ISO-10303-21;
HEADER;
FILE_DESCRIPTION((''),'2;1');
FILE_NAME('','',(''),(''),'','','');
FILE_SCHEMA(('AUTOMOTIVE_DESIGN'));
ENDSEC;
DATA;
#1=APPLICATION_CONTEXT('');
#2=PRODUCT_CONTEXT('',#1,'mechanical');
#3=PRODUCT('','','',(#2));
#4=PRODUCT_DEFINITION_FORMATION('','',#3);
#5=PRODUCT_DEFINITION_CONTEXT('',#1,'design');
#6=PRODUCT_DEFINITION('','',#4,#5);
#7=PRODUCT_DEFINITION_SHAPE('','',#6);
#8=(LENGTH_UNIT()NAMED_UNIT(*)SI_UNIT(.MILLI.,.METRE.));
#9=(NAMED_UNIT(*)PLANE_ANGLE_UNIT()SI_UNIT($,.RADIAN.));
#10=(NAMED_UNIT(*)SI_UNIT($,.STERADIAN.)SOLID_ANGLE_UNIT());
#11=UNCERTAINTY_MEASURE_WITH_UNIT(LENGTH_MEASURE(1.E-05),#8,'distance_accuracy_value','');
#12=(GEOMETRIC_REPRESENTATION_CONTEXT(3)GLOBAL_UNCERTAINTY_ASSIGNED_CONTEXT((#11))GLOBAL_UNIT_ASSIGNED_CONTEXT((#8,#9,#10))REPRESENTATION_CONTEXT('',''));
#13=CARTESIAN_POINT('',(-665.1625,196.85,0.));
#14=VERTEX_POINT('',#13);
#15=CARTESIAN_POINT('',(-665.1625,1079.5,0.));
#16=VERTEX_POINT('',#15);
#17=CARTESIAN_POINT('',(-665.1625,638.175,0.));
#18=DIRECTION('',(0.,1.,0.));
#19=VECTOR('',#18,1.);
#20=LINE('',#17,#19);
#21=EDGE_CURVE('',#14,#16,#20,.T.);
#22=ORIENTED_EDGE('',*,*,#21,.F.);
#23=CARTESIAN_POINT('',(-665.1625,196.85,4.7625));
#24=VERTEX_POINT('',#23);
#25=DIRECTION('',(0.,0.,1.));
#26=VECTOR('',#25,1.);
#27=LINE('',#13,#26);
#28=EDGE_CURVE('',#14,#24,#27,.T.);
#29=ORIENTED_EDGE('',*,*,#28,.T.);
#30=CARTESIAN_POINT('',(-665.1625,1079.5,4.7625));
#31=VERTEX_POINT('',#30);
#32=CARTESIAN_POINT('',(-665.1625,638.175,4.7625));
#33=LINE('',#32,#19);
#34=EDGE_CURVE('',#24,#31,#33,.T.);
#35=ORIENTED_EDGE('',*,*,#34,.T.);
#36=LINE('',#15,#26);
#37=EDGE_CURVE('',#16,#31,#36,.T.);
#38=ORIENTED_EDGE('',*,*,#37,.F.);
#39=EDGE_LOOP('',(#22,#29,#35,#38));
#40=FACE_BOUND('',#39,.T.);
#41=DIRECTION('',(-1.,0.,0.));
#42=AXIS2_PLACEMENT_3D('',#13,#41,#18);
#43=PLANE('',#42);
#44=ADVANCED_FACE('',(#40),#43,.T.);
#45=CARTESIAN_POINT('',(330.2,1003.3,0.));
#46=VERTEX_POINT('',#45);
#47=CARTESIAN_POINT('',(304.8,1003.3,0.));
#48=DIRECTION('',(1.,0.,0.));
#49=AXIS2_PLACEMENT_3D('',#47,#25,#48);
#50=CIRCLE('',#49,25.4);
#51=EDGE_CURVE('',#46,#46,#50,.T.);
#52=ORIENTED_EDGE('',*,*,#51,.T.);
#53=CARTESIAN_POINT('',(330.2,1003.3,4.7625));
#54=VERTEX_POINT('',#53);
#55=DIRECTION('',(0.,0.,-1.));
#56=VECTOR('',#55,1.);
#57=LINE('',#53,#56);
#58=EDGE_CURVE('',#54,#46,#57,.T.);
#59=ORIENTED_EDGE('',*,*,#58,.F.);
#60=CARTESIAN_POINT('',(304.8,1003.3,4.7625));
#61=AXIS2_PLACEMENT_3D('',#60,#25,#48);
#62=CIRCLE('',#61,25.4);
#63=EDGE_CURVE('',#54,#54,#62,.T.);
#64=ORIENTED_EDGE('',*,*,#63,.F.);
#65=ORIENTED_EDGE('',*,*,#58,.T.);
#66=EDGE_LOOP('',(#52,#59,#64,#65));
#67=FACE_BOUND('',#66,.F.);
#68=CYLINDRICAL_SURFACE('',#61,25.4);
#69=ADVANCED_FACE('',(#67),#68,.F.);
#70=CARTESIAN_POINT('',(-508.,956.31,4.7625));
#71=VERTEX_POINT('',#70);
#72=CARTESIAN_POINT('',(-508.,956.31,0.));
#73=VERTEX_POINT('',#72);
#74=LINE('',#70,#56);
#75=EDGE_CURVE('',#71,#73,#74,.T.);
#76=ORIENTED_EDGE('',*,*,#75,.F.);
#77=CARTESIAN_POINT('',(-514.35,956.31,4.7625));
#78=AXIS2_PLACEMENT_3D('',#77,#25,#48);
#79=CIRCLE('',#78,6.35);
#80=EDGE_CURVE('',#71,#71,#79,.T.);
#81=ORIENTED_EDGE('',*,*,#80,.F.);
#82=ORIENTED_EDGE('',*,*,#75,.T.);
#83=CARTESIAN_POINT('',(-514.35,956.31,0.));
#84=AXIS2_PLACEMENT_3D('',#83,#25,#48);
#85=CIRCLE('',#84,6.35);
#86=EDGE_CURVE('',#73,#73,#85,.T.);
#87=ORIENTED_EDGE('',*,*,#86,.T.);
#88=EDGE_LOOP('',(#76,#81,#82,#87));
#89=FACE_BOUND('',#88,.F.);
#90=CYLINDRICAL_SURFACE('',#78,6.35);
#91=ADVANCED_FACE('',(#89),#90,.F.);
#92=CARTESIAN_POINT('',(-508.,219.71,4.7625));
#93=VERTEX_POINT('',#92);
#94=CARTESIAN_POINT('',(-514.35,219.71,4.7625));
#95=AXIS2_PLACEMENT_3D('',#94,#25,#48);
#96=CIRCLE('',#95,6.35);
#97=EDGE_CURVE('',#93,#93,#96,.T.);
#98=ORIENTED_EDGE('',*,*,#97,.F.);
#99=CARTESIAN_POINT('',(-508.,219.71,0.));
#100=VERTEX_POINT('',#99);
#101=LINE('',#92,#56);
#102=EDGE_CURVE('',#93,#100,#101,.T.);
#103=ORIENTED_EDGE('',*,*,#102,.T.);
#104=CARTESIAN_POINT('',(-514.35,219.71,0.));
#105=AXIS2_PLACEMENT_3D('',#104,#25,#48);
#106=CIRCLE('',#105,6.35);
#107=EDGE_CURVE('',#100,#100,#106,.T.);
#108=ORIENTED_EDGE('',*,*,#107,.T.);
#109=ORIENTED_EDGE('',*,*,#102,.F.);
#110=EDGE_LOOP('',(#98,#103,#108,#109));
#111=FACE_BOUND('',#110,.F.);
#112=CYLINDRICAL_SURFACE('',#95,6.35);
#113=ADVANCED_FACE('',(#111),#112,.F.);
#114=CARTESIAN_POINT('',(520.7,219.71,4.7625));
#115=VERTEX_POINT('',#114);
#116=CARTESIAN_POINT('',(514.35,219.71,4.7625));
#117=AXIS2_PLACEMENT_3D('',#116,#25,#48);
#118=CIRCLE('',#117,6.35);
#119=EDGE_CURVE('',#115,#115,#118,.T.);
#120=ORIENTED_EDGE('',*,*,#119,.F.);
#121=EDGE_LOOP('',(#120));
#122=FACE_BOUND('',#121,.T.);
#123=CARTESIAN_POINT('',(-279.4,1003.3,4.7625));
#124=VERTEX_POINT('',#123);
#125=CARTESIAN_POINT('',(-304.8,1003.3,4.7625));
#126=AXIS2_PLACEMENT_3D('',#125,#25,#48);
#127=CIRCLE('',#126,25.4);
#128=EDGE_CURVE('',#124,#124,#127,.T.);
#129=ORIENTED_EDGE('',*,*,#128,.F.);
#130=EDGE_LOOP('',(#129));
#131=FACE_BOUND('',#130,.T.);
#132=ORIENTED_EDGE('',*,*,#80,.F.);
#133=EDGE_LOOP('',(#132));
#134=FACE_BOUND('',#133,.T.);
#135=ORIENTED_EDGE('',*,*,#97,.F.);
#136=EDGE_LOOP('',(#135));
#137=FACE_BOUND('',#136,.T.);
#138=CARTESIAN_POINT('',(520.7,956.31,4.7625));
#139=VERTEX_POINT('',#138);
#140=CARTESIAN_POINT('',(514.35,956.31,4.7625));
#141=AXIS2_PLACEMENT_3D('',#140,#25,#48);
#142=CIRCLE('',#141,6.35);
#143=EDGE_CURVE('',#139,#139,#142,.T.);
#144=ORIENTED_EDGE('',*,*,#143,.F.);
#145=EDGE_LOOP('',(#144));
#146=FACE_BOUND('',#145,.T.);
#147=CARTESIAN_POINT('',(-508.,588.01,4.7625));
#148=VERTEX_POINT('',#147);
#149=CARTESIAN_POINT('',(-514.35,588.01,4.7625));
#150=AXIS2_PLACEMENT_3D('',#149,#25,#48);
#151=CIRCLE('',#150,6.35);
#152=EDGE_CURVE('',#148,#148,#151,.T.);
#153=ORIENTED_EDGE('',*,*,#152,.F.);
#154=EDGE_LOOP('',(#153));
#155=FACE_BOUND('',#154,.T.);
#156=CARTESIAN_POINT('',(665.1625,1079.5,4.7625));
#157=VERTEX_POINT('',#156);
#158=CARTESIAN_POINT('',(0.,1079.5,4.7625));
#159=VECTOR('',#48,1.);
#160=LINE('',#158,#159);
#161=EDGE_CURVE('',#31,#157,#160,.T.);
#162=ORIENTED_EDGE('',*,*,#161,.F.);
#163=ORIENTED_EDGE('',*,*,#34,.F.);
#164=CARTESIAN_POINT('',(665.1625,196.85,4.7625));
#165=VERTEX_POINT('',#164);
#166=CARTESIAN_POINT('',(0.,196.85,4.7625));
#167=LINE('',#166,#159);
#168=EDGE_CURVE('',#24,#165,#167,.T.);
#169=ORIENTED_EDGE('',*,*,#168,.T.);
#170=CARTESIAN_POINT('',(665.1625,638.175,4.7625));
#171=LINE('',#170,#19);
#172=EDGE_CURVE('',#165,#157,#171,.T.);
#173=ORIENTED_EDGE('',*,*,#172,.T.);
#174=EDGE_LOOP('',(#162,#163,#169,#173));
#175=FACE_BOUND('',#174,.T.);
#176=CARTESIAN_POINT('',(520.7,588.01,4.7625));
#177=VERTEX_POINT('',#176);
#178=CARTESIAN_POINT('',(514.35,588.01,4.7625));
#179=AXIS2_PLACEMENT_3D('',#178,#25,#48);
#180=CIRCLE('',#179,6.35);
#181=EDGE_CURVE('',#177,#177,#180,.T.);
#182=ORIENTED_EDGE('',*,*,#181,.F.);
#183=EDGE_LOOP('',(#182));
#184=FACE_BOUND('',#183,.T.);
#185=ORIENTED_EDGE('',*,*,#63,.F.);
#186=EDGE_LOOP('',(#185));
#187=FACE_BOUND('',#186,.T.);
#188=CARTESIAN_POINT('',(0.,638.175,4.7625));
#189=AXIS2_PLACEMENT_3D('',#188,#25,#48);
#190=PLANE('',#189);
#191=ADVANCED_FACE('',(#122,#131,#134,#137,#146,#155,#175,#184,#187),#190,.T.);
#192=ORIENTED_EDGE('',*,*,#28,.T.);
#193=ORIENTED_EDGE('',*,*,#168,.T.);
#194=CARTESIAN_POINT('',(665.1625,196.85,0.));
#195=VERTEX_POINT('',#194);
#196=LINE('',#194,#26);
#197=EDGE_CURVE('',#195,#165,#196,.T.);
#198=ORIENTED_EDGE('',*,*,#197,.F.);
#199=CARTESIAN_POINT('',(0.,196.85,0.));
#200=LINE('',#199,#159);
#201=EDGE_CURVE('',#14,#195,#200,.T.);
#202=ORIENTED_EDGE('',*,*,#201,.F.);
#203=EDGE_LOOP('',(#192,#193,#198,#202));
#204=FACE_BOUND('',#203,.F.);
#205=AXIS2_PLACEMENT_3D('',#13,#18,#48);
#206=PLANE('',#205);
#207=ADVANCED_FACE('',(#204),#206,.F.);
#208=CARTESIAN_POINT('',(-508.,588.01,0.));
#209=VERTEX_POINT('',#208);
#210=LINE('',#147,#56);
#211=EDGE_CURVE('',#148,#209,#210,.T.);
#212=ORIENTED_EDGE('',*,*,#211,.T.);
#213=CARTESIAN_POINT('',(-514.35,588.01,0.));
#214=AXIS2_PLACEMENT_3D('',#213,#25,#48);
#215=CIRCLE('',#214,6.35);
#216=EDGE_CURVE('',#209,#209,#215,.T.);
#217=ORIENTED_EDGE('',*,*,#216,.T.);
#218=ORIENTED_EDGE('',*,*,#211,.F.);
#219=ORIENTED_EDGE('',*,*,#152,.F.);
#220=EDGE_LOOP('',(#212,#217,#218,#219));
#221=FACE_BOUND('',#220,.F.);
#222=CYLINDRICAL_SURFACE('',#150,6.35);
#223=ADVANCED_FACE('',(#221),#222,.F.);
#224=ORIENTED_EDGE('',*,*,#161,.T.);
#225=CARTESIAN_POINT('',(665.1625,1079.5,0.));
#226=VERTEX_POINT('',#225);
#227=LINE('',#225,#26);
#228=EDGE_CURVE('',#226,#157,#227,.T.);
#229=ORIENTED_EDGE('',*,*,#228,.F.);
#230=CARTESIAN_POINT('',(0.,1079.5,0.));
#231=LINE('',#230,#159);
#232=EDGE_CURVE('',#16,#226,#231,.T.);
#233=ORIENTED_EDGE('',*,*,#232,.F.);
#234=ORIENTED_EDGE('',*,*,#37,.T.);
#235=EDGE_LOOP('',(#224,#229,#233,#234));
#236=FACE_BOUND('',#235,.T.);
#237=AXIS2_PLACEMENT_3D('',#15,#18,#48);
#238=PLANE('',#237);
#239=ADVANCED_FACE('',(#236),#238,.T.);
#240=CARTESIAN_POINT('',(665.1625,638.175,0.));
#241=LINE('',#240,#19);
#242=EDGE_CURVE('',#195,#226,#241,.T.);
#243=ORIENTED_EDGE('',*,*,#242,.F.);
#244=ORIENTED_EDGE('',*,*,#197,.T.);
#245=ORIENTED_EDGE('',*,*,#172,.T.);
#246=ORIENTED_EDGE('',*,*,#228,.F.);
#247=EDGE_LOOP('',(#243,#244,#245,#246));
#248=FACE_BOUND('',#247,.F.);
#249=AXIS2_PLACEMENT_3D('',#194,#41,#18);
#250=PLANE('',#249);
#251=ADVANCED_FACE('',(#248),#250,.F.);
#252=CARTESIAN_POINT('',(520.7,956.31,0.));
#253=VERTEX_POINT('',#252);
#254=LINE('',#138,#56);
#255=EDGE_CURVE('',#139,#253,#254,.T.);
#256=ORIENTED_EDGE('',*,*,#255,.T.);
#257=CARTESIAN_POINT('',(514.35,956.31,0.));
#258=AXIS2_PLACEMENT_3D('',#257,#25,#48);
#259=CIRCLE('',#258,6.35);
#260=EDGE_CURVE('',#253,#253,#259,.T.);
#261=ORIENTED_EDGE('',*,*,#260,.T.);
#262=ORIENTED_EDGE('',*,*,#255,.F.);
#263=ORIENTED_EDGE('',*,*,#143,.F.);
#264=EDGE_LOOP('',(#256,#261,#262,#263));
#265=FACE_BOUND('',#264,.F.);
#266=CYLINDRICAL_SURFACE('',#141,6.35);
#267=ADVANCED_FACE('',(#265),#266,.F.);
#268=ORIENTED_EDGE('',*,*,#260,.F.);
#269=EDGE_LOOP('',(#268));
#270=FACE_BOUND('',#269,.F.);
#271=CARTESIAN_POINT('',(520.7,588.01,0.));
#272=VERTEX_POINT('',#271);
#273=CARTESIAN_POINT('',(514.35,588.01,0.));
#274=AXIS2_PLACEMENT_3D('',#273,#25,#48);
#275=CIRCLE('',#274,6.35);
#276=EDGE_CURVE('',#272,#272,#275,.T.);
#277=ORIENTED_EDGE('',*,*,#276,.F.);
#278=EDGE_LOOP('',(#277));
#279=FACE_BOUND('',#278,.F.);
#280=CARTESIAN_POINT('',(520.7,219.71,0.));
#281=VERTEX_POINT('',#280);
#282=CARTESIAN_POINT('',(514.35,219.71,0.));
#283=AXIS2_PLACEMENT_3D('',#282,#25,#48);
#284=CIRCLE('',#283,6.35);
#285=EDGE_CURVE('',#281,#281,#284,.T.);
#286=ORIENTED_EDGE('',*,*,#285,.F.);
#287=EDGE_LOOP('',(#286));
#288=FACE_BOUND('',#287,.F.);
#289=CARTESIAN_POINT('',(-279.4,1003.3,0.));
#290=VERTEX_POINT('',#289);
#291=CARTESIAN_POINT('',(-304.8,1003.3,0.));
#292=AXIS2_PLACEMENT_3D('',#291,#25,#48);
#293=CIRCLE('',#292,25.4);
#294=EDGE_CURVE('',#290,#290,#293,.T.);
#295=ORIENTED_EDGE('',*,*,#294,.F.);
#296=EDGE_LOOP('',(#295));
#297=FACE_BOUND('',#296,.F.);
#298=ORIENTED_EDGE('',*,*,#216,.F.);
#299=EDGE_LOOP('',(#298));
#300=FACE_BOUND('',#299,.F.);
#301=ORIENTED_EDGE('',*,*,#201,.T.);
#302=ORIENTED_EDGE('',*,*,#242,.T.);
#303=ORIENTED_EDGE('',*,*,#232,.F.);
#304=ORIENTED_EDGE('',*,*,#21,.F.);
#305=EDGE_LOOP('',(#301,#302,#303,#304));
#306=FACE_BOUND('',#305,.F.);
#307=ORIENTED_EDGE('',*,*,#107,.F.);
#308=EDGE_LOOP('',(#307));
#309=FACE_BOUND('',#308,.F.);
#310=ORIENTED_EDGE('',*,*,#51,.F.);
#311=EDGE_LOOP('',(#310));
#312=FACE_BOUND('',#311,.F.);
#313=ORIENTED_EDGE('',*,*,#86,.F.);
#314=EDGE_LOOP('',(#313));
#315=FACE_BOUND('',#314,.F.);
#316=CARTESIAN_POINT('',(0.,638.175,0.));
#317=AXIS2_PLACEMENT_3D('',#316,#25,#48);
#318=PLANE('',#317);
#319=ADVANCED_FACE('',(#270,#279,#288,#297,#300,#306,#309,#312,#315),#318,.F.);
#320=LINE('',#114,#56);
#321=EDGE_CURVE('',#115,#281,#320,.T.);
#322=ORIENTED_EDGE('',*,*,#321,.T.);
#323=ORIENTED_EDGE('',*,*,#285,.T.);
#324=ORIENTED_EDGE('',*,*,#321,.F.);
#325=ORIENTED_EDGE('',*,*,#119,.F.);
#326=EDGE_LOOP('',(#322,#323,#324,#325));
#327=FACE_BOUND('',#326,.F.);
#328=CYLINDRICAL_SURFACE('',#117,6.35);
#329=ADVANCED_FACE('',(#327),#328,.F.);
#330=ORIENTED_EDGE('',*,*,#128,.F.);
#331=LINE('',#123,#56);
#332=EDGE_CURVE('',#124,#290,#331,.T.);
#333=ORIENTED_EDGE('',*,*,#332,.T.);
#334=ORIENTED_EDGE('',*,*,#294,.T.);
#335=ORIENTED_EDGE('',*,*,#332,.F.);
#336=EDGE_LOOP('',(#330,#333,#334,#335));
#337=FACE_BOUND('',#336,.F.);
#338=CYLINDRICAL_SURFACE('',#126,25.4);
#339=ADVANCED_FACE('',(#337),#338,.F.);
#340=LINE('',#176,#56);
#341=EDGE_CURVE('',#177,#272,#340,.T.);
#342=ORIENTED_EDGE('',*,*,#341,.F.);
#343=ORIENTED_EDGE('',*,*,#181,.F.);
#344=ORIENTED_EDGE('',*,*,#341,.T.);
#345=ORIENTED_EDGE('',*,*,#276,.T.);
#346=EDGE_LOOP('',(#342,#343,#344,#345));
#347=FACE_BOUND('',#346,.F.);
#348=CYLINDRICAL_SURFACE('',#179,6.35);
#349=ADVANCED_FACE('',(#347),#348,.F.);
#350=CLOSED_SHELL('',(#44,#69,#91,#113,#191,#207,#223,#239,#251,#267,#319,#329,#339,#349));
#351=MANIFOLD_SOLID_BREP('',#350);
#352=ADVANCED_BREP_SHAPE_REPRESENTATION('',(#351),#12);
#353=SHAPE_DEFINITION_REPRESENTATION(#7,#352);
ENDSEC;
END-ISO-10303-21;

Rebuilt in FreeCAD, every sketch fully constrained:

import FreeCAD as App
import Part
import Sketcher

V = App.Vector
Q = App.Units.Quantity


def add_polygon(sketch, points):
    """Adds a closed chain of lines whose ends are joined by coincident constraints."""
    first, n = sketch.GeometryCount, len(points)
    for a, b in zip(points, points[1:] + points[:1]):
        sketch.addGeometry(Part.LineSegment(App.Vector(*a, 0), App.Vector(*b, 0)), False)
    for i in range(n):
        sketch.addConstraint(Sketcher.Constraint("Coincident", first + i, 2, first + (i + 1) % n, 1))

doc = App.newDocument("Part")
params = doc.addObject("Spreadsheet::Sheet", "Params")
for row, (alias, value) in enumerate([
    ("sketch1_height", "34.75 in"),
    ("sketch1_width", "52.375 in"),
    ("pad1_length", "0.1875 in"),
    ("sketch2_diameter", "0.5 in"),
    ("sketch3_diameter", "2 in"),
], start=1):
    params.set(f"A{row}", alias)
    params.set(f"B{row}", "=" + value)
    params.setAlias(f"B{row}", alias)

body = doc.addObject("PartDesign::Body", "Body")

# Sketch on XY plane
sketch1 = body.newObject("Sketcher::SketchObject", "Sketch")
sketch1.AttachmentSupport = (doc.getObject("XY_Plane"), [""])
sketch1.MapMode = "FlatFace"
add_polygon(sketch1, [(-665, 1080), (-665, 197), (665, 197), (665, 1080)])  # lines 0-3
sketch1.addConstraint([
    Sketcher.Constraint("Vertical", 0),
    Sketcher.Constraint("Horizontal", 1),
    Sketcher.Constraint("Vertical", 2),
    Sketcher.Constraint("Horizontal", 3),
    Sketcher.Constraint("DistanceY", 0, 2, 0, 1, Q("34.75 in")),
    Sketcher.Constraint("DistanceY", -1, 1, 2, 2, Q("42.5 in")),
    Sketcher.Constraint("DistanceX", 1, 1, 1, 2, Q("52.375 in")),
    Sketcher.Constraint("DistanceX", 0, 2, -1, 1, Q("26.1875 in")),
])
sketch1.setExpression("Constraints[8]", "Params.sketch1_height")
sketch1.setExpression("Constraints[10]", "Params.sketch1_width")
pad1 = body.newObject("PartDesign::Pad", "Pad")
pad1.Profile = sketch1
pad1.setExpression("Length", "Params.pad1_length")

# Sketch on XY plane
sketch2 = body.newObject("Sketcher::SketchObject", "Sketch001")
sketch2.AttachmentSupport = (doc.getObject("XY_Plane"), [""])
sketch2.MapMode = "FlatFace"
sketch2.AttachmentOffset = App.Placement(V(0, 0, 0.1875 * 25.4), App.Rotation())
sketch2.addGeometry([
    Part.Circle(V(514, 956, 0), V(0, 0, 1), 6),  # 0
    Part.Circle(V(514, 588, 0), V(0, 0, 1), 6),  # 1
    Part.Circle(V(514, 220, 0), V(0, 0, 1), 6),  # 2
    Part.Circle(V(-514, 220, 0), V(0, 0, 1), 6),  # 3
    Part.Circle(V(-514, 588, 0), V(0, 0, 1), 6),  # 4
    Part.Circle(V(-514, 956, 0), V(0, 0, 1), 6),  # 5
], False)
sketch2.addConstraint([
    Sketcher.Constraint("Equal", 0, 1),
    Sketcher.Constraint("Equal", 1, 2),
    Sketcher.Constraint("Equal", 2, 3),
    Sketcher.Constraint("Equal", 3, 4),
    Sketcher.Constraint("Equal", 4, 5),
    Sketcher.Constraint("Symmetric", 2, 3, 3, 3, -2),
    Sketcher.Constraint("Symmetric", 1, 3, 4, 3, -2),
    Sketcher.Constraint("Symmetric", 0, 3, 5, 3, -2),
    Sketcher.Constraint("Vertical", 0, 3, 1, 3),
    Sketcher.Constraint("Vertical", 1, 3, 2, 3),
    Sketcher.Constraint("Diameter", 0, Q("0.5 in")),
    Sketcher.Constraint("DistanceY", 2, 3, 0, 3, Q("29 in")),
    Sketcher.Constraint("DistanceY", 1, 3, 0, 3, Q("14.5 in")),
    Sketcher.Constraint("DistanceX", 3, 3, 2, 3, Q("40.5 in")),
    Sketcher.Constraint("DistanceY", -1, 1, 0, 3, Q("37.65 in")),
])
sketch2.setExpression("Constraints[10]", "Params.sketch2_diameter")
pocket1 = body.newObject("PartDesign::Pocket", "Pocket")
pocket1.Profile = sketch2
pocket1.Type = "ThroughAll"

# Sketch on XY plane
sketch3 = body.newObject("Sketcher::SketchObject", "Sketch002")
sketch3.AttachmentSupport = (doc.getObject("XY_Plane"), [""])
sketch3.MapMode = "FlatFace"
sketch3.AttachmentOffset = App.Placement(V(0, 0, 0.1875 * 25.4), App.Rotation())
sketch3.addGeometry([
    Part.Circle(V(305, 1003, 0), V(0, 0, 1), 25),
    Part.Circle(V(-305, 1003, 0), V(0, 0, 1), 25),
], False)
sketch3.addConstraint([
    Sketcher.Constraint("Equal", 0, 1),
    Sketcher.Constraint("Symmetric", 0, 3, 1, 3, -2),
    Sketcher.Constraint("Diameter", 0, Q("2 in")),
    Sketcher.Constraint("DistanceX", -1, 1, 0, 3, Q("12 in")),
    Sketcher.Constraint("DistanceY", -1, 1, 0, 3, Q("39.5 in")),
])
sketch3.setExpression("Constraints[2]", "Params.sketch3_diameter")
pocket2 = body.newObject("PartDesign::Pocket", "Pocket001")
pocket2.Profile = sketch3
pocket2.Type = "ThroughAll"

doc.recompute()
